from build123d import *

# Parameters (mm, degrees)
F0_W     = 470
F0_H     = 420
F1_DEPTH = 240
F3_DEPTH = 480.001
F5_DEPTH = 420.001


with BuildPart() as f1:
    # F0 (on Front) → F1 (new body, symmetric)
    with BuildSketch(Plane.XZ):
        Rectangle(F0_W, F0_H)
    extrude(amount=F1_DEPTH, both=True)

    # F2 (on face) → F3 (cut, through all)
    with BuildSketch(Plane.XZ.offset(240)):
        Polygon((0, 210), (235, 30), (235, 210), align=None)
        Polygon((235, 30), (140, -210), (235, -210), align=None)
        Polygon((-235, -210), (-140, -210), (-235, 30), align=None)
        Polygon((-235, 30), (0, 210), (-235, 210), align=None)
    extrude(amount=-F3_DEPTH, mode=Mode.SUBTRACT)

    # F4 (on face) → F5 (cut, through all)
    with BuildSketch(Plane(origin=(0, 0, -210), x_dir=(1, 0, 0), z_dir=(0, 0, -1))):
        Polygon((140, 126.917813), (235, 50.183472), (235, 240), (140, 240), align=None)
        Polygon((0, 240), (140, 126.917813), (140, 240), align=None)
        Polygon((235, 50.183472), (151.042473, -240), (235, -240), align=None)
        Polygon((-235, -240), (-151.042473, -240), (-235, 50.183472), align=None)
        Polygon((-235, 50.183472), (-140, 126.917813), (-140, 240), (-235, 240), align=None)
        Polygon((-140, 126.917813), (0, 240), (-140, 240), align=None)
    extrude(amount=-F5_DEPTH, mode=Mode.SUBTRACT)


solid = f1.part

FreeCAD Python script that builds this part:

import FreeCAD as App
import Part
import Sketcher

V = App.Vector
Q = App.Units.Quantity


def add_polygon(sketch, points):
    """Adds a closed chain of lines whose ends are joined by coincident constraints."""
    first, n = sketch.GeometryCount, len(points)
    for a, b in zip(points, points[1:] + points[:1]):
        sketch.addGeometry(Part.LineSegment(App.Vector(*a, 0), App.Vector(*b, 0)), False)
    for i in range(n):
        sketch.addConstraint(Sketcher.Constraint("Coincident", first + i, 2, first + (i + 1) % n, 1))

doc = App.newDocument("Part")
params = doc.addObject("Spreadsheet::Sheet", "Params")
for row, (alias, value) in enumerate([
    ("sketch1_width", "470 mm"),
    ("sketch1_height", "420 mm"),
    ("pad1_length", "480 mm"),
    ("sketch2_width", "235 mm"),
    ("sketch2_width2", "95 mm"),
    ("sketch2_height", "180 mm"),
    ("sketch2_height2", "240 mm"),
    ("sketch3_width", "235 mm"),
], start=1):
    params.set(f"A{row}", alias)
    params.set(f"B{row}", "=" + value)
    params.setAlias(f"B{row}", alias)

body = doc.addObject("PartDesign::Body", "Body")

sketch1 = body.newObject("Sketcher::SketchObject", "Sketch")
sketch1.AttachmentSupport = (doc.getObject("XZ_Plane"), [""])
sketch1.MapMode = "FlatFace"
add_polygon(sketch1, [(-235, 210), (-235, -210), (235, -210), (235, 210)])
sketch1.addConstraint([
    Sketcher.Constraint("Vertical", 0),
    Sketcher.Constraint("Horizontal", 1),
    Sketcher.Constraint("Vertical", 2),
    Sketcher.Constraint("Horizontal", 3),
    Sketcher.Constraint("Symmetric", 0, 2, 2, 2, -1, 1),
    Sketcher.Constraint("DistanceX", 1, 1, 1, 2, Q("470 mm")),
    Sketcher.Constraint("DistanceY", 0, 2, 0, 1, Q("420 mm")),
])
sketch1.setExpression("Constraints[9]", "Params.sketch1_width")
sketch1.setExpression("Constraints[10]", "Params.sketch1_height")
pad1 = body.newObject("PartDesign::Pad", "Pad")
pad1.Profile = sketch1
pad1.setExpression("Length", "Params.pad1_length")
pad1.Midplane = True

sketch2 = body.newObject("Sketcher::SketchObject", "Sketch001")
sketch2.AttachmentSupport = (doc.getObject("XZ_Plane"), [""])
sketch2.MapMode = "FlatFace"
sketch2.AttachmentOffset = App.Placement(V(0, 0, 240), App.Rotation())
add_polygon(sketch2, [(0, 210), (235, 30), (235, 210)])
add_polygon(sketch2, [(235, 30), (140, -210), (235, -210)])
add_polygon(sketch2, [(-235, -210), (-140, -210), (-235, 30)])
add_polygon(sketch2, [(-235, 30), (0, 210), (-235, 210)])
sketch2.addConstraint([
    Sketcher.Constraint("Vertical", 1),
    Sketcher.Constraint("Horizontal", 2),
    Sketcher.Constraint("Horizontal", 4),
    Sketcher.Constraint("Vertical", 5),
    Sketcher.Constraint("Horizontal", 6),
    Sketcher.Constraint("Vertical", 8),
    Sketcher.Constraint("Horizontal", 10),
    Sketcher.Constraint("Vertical", 11),
    Sketcher.Constraint("Coincident", 5, 2, 0, 2),
    Sketcher.Constraint("Coincident", 9, 2, 2, 2),
    Sketcher.Constraint("Coincident", 11, 2, 7, 2),
    Sketcher.Constraint("Symmetric", 1, 2, 8, 2, -1, 1),
    Sketcher.Constraint("Symmetric", 3, 2, 6, 2, -2),
    Sketcher.Constraint("PointOnObject", 2, 2, -2),
    Sketcher.Constraint("Horizontal", 5, 2, 7, 2),
    Sketcher.Constraint("DistanceX", 2, 2, 2, 1, Q("235 mm")),
    Sketcher.Constraint("DistanceX", 4, 1, 4, 2, Q("95 mm")),
    Sketcher.Constraint("DistanceY", 1, 1, 1, 2, Q("180 mm")),
    Sketcher.Constraint("DistanceY", 5, 1, 5, 2, Q("240 mm")),
])
sketch2.setExpression("Constraints[27]", "Params.sketch2_width")
sketch2.setExpression("Constraints[28]", "Params.sketch2_width2")
sketch2.setExpression("Constraints[29]", "Params.sketch2_height")
sketch2.setExpression("Constraints[30]", "Params.sketch2_height2")
pocket1 = body.newObject("PartDesign::Pocket", "Pocket")
pocket1.Profile = sketch2
pocket1.Type = "ThroughAll"

sketch3 = body.newObject("Sketcher::SketchObject", "Sketch002")
sketch3.AttachmentSupport = (doc.getObject("XY_Plane"), [""])
sketch3.MapMode = "FlatFace"
sketch3.AttachmentOffset = App.Placement(V(0, 0, -210), App.Rotation())
add_polygon(sketch3, [(140, -127), (235, -50), (235, -240), (0, -240)])
add_polygon(sketch3, [(235, -50), (151, 240), (235, 240)])
add_polygon(sketch3, [(-235, 240), (-151, 240), (-235, -50)])
add_polygon(sketch3, [(-235, -50), (-140, -127), (0, -240), (-235, -240)])
sketch3.addConstraint([
    Sketcher.Constraint("Vertical", 1),
    Sketcher.Constraint("Horizontal", 2),
    Sketcher.Constraint("Horizontal", 5),
    Sketcher.Constraint("Vertical", 6),
    Sketcher.Constraint("Horizontal", 7),
    Sketcher.Constraint("Vertical", 9),
    Sketcher.Constraint("Horizontal", 12),
    Sketcher.Constraint("Vertical", 13),
    Sketcher.Constraint("Coincident", 6, 2, 0, 2),
    Sketcher.Constraint("Coincident", 11, 2, 2, 2),
    Sketcher.Constraint("Coincident", 13, 2, 8, 2),
    Sketcher.Constraint("Symmetric", 1, 2, 9, 2, -1, 1),
    Sketcher.Constraint("Symmetric", 4, 2, 7, 2, -2),
    Sketcher.Constraint("Symmetric", 3, 2, 10, 2, -2),
    Sketcher.Constraint("PointOnObject", 2, 2, -2),
    Sketcher.Constraint("Parallel", 0, 3),
    Sketcher.Constraint("Parallel", 10, 11),
    Sketcher.Constraint("DistanceX", 2, 2, 2, 1, Q("235 mm")),
    Sketcher.Constraint("DistanceY", 1, 2, -1, 1, Q("240 mm")),
    Sketcher.Constraint("DistanceX", -1, 1, 3, 2, Q("140 mm")),
    Sketcher.Constraint("Distance", 3, Q("179.9655 mm")),
    Sketcher.Constraint("DistanceX", 5, 1, 5, 2, Q("83.957527 mm")),
])
sketch3.setExpression("Constraints[31]", "Params.sketch3_width")
pocket2 = body.newObject("PartDesign::Pocket", "Pocket001")
pocket2.Profile = sketch3
pocket2.Type = "ThroughAll"
pocket2.Reversed = True

doc.recompute()
